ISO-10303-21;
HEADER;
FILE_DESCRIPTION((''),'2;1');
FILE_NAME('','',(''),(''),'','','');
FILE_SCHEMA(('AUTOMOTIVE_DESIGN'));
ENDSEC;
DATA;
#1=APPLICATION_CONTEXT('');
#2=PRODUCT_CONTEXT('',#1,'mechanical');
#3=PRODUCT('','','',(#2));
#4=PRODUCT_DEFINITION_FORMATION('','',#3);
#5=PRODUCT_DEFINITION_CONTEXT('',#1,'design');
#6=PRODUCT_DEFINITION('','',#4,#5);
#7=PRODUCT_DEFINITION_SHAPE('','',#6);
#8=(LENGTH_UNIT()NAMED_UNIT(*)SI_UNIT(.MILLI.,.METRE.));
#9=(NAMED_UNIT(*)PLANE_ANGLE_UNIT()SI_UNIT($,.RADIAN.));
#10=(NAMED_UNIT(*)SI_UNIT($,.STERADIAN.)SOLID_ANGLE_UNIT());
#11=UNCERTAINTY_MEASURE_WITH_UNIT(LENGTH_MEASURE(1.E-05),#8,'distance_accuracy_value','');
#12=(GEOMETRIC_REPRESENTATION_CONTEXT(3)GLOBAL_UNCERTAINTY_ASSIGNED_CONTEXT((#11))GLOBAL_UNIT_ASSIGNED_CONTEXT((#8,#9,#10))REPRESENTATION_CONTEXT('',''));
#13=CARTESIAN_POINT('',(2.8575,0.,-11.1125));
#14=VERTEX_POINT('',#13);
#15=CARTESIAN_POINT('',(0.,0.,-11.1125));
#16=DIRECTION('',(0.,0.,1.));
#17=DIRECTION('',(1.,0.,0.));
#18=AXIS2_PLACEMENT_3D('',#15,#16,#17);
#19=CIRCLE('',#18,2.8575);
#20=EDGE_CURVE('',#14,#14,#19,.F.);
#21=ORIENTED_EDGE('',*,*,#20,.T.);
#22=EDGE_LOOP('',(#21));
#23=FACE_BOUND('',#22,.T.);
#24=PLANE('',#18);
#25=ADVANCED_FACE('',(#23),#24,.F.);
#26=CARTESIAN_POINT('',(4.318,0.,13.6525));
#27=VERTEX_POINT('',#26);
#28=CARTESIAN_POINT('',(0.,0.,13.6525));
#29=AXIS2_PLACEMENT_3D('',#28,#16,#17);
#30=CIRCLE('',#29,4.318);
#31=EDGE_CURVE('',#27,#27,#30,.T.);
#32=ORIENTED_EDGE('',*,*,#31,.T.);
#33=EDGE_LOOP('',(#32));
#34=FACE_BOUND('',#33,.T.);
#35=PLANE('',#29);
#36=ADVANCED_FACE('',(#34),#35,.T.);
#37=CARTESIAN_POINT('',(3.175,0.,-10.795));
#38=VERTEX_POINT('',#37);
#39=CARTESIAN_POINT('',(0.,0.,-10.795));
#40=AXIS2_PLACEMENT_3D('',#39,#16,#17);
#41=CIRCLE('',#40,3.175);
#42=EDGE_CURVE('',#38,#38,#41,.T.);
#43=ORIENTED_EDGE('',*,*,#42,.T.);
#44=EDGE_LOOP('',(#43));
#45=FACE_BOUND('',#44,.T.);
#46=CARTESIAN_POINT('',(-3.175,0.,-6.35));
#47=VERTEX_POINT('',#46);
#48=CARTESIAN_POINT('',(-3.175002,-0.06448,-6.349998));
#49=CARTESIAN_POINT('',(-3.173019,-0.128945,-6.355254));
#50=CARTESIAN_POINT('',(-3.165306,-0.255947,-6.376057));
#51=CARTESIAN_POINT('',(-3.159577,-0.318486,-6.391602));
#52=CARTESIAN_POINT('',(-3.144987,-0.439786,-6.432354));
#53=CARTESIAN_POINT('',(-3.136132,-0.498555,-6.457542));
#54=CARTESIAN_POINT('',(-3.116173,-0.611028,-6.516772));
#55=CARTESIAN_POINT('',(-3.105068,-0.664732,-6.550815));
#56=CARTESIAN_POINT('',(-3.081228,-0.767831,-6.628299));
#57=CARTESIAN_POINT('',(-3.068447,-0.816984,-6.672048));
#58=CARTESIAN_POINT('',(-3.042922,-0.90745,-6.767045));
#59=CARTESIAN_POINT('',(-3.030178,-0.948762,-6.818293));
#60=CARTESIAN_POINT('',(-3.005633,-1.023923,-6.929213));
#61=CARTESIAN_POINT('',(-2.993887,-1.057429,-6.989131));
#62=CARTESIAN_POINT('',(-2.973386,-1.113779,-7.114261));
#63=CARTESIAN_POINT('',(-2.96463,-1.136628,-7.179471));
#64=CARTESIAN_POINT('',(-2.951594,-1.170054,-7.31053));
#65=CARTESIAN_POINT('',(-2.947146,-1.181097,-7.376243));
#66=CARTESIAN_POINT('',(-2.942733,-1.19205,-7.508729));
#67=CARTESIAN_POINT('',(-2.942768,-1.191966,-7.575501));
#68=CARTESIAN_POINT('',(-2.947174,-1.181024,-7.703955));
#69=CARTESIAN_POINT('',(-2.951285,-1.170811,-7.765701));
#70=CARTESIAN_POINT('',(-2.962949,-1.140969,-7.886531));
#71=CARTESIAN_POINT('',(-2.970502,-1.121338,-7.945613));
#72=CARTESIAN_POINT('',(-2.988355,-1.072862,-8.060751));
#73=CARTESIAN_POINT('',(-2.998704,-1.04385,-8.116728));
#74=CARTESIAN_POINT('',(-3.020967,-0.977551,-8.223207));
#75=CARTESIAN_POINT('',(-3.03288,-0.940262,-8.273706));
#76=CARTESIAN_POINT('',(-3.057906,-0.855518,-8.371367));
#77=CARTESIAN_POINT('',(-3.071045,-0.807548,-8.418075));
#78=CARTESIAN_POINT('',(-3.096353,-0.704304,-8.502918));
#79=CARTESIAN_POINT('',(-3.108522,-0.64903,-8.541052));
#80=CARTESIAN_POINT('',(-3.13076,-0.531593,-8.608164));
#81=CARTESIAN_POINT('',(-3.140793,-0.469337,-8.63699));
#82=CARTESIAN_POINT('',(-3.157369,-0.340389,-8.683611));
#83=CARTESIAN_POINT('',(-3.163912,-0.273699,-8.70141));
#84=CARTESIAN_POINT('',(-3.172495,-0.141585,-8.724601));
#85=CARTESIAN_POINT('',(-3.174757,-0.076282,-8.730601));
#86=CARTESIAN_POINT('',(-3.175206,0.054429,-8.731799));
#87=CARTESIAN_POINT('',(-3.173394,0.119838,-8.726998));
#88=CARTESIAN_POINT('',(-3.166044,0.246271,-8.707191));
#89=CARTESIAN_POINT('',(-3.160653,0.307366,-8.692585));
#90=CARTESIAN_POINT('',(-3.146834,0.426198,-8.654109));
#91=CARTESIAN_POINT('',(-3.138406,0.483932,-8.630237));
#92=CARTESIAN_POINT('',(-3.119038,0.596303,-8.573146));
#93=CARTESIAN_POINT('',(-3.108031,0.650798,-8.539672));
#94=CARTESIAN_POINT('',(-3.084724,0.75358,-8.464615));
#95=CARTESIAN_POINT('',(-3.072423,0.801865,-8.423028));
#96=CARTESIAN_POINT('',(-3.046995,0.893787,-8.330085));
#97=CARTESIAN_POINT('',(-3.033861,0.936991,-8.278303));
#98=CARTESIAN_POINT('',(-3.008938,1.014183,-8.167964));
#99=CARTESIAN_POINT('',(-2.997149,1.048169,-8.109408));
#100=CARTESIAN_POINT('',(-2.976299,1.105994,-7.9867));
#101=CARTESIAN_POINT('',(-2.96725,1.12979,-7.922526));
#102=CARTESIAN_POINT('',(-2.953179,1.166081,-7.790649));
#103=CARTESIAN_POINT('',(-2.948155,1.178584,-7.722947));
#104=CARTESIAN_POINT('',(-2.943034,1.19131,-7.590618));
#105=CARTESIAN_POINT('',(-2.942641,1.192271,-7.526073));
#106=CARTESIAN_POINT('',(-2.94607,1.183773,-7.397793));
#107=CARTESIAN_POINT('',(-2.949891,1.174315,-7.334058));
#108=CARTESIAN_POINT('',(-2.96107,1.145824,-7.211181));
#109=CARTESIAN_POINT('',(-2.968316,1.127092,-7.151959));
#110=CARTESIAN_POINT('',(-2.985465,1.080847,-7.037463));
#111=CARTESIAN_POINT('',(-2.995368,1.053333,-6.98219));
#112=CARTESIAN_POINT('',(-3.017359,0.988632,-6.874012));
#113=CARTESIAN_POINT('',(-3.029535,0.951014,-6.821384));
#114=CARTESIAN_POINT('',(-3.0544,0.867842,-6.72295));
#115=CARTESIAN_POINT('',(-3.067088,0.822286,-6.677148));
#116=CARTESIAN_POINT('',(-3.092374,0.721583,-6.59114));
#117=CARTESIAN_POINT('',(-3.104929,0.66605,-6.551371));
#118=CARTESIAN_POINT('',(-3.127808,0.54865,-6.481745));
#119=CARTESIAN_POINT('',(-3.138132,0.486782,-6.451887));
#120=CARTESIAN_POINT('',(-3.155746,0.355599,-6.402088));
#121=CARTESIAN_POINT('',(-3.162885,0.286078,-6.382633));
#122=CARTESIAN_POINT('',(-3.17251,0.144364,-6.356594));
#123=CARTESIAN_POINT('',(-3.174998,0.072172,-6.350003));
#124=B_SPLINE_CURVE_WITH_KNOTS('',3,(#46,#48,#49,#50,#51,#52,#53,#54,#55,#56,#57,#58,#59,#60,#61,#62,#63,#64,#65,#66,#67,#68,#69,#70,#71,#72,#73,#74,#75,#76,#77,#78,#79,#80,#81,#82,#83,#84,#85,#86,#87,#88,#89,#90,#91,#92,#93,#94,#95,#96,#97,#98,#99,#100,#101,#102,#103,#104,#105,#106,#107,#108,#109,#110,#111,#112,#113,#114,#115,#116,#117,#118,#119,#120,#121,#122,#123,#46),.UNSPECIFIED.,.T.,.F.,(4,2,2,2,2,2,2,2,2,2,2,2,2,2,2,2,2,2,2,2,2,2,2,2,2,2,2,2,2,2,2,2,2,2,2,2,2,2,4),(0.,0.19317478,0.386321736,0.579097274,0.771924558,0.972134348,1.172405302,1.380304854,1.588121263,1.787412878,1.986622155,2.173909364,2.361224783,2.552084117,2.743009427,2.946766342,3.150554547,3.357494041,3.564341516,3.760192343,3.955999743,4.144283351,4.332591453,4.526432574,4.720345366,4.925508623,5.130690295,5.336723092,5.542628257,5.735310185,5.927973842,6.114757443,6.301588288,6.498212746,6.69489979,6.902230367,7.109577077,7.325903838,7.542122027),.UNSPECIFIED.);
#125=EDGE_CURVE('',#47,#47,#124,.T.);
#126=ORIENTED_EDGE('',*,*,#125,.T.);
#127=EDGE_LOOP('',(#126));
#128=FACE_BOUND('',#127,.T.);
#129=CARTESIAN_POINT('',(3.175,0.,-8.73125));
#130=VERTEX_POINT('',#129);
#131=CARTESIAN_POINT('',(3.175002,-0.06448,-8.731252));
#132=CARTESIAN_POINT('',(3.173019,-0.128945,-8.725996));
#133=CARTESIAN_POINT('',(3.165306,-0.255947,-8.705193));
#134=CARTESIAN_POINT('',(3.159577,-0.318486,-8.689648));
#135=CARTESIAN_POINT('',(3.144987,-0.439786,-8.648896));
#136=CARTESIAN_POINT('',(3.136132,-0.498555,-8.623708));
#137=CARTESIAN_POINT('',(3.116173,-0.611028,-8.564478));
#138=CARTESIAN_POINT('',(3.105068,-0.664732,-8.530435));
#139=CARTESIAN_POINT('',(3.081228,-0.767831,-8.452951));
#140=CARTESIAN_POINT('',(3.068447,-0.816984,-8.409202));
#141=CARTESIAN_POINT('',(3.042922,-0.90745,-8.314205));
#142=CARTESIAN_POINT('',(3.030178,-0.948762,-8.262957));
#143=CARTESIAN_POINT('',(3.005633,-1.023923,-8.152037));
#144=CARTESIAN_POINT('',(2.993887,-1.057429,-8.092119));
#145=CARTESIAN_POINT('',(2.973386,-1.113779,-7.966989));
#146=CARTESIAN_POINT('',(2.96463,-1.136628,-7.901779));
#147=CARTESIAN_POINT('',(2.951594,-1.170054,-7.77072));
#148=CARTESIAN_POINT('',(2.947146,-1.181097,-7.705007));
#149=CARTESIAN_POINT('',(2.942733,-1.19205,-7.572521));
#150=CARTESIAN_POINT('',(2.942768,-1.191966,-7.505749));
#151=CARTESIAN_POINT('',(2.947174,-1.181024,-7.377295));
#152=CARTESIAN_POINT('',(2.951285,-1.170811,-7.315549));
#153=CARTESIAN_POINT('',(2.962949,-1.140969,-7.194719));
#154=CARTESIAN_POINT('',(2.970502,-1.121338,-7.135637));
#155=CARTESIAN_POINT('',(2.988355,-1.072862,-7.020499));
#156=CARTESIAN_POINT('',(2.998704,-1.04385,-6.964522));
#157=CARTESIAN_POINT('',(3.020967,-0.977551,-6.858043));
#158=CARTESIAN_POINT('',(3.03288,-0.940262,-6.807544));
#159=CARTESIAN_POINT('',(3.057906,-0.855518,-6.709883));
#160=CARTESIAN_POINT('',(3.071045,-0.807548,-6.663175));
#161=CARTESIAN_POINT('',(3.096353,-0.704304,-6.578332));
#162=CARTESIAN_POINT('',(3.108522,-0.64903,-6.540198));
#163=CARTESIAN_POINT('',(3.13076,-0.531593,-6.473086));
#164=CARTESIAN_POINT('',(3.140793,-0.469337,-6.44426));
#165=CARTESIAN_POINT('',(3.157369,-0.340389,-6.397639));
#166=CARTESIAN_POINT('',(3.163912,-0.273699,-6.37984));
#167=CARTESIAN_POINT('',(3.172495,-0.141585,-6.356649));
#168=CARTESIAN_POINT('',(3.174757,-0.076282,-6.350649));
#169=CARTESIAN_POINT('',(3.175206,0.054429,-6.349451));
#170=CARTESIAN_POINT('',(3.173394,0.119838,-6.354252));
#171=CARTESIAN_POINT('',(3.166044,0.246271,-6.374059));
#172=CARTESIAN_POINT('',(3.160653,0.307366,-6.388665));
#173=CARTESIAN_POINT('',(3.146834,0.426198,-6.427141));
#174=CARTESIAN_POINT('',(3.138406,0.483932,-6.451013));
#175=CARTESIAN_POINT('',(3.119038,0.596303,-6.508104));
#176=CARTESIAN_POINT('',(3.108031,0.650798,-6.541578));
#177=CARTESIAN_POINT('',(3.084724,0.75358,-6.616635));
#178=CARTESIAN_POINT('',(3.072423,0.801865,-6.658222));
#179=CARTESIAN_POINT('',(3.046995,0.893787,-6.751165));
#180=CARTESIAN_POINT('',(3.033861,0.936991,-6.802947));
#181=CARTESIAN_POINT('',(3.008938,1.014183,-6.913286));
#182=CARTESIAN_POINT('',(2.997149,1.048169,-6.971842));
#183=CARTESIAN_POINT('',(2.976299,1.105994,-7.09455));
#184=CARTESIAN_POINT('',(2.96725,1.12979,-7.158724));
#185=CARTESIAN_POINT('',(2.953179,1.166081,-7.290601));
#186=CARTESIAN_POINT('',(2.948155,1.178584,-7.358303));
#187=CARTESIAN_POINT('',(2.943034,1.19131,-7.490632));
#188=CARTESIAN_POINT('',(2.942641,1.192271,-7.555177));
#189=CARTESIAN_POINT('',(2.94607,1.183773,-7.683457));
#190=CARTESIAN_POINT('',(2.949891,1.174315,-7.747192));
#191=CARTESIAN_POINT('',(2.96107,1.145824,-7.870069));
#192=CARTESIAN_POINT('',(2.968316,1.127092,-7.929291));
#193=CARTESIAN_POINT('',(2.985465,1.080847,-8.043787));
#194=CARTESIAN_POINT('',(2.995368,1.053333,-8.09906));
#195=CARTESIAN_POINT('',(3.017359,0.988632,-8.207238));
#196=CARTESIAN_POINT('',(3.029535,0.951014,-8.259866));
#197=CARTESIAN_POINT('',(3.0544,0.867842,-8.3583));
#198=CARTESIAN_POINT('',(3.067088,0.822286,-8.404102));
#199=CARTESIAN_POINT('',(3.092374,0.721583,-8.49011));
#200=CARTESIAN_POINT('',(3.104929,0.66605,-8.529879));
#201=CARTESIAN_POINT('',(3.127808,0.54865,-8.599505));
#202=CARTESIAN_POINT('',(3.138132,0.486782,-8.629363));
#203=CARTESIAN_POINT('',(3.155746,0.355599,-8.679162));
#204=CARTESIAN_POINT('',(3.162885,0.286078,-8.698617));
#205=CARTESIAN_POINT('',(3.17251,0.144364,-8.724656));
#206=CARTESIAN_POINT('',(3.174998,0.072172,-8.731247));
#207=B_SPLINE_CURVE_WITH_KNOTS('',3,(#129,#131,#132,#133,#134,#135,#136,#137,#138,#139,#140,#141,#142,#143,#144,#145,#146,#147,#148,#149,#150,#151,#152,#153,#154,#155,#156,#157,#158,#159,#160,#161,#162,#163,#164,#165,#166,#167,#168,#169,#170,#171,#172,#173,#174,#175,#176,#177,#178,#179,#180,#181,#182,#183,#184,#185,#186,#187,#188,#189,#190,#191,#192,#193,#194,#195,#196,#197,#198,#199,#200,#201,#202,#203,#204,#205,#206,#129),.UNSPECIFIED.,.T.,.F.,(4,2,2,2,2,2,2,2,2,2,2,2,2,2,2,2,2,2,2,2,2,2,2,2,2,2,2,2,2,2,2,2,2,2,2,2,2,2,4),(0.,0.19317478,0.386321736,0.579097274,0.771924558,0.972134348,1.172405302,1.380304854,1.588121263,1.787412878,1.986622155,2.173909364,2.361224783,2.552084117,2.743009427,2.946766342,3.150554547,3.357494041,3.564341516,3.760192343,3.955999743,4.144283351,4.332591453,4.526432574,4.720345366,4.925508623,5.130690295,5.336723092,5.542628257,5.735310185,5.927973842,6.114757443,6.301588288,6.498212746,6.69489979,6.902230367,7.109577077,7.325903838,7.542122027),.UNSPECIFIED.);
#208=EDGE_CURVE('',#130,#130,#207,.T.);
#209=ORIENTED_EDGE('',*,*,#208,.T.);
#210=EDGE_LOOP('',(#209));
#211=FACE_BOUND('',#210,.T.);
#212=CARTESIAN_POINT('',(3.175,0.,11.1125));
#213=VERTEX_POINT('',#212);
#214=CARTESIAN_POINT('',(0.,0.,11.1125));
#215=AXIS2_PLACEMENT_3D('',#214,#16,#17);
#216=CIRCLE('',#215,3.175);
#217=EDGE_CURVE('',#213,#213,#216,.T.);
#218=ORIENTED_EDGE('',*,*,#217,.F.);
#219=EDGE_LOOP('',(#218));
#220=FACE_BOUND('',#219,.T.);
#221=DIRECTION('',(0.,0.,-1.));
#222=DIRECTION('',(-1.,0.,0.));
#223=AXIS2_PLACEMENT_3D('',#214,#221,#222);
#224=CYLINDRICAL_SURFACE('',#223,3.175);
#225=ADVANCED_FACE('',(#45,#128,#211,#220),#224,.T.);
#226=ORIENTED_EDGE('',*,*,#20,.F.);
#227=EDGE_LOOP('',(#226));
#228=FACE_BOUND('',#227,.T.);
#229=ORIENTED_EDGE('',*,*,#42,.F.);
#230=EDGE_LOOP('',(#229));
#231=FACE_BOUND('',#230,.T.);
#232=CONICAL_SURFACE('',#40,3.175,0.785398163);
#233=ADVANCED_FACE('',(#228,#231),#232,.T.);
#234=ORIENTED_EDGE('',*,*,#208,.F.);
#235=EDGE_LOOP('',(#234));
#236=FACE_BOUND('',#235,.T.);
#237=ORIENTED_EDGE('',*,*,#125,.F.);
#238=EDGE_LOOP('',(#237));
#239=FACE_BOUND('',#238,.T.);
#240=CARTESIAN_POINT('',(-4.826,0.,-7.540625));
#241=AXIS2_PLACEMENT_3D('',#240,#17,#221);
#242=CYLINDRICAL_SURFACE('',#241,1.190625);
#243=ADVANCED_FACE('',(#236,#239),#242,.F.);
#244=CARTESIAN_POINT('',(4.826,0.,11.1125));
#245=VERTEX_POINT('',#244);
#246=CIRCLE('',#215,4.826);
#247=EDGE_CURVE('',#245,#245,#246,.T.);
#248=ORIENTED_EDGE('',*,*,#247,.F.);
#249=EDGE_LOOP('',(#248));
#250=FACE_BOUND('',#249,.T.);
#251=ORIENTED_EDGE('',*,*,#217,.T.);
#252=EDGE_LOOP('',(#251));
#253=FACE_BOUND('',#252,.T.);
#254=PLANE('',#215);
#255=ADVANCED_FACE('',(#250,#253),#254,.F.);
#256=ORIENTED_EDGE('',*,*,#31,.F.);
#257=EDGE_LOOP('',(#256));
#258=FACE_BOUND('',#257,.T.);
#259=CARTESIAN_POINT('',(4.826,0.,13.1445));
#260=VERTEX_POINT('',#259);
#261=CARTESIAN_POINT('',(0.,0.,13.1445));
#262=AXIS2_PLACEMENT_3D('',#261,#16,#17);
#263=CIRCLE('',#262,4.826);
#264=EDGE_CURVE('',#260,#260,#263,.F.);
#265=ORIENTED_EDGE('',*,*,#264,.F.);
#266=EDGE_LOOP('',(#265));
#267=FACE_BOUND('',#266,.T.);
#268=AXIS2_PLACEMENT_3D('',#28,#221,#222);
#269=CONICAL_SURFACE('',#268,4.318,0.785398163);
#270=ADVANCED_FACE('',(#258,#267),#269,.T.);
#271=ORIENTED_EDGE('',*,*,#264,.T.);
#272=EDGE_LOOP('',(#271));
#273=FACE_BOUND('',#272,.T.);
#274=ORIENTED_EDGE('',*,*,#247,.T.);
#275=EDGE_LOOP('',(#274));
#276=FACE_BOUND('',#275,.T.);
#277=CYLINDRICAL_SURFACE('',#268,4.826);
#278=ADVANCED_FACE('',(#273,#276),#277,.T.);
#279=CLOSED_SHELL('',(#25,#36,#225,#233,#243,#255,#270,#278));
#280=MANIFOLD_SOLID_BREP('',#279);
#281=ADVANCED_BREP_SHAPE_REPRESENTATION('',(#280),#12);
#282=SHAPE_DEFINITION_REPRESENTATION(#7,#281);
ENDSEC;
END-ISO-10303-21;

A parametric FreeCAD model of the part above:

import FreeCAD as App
import Part
import Sketcher
Q = App.Units.Quantity


def edges_at(feature, points):
    """Names of the edges that pass closest to the given points."""
    edges = feature.Shape.Edges
    near = lambda p: min(range(len(edges)), key=lambda i: edges[i].distToShape(Part.Vertex(*p))[0])
    return sorted({f"Edge{near(p) + 1}" for p in points})

doc = App.newDocument("Part")
body = doc.addObject("PartDesign::Body", "Body")

# Sketch on XY plane
sketch1 = body.newObject("Sketcher::SketchObject", "Sketch")
sketch1.AttachmentSupport = (doc.getObject("XY_Plane"), [""])
sketch1.MapMode = "FlatFace"
sketch1.addGeometry(Part.Circle(App.Vector(0, 0, 0), App.Vector(0, 0, 1), 3.175), False)
sketch1.addConstraint(Sketcher.Constraint("Coincident", 0, 3, -1, 1))
sketch1.addConstraint(Sketcher.Constraint("Diameter", 0, Q("0.25 in")))
pad1 = body.newObject("PartDesign::Pad", "Pad")
pad1.Profile = sketch1
pad1.Length = Q("0.875 in")
pad1.Midplane = True

# Sketch on XY plane
sketch2 = body.newObject("Sketcher::SketchObject", "Sketch001")
sketch2.AttachmentSupport = (doc.getObject("XY_Plane"), [""])
sketch2.MapMode = "FlatFace"
sketch2.AttachmentOffset = App.Placement(App.Vector(0, 0, 0.4375 * 25.4), App.Rotation())
sketch2.addGeometry(Part.Circle(App.Vector(0, 0, 0), App.Vector(0, 0, 1), 4.826), False)
sketch2.addConstraint(Sketcher.Constraint("Coincident", 0, 3, -1, 1))
sketch2.addConstraint(Sketcher.Constraint("Diameter", 0, Q("0.38 in")))
pad2 = body.newObject("PartDesign::Pad", "Pad001")
pad2.Profile = sketch2
pad2.Length = Q("0.1 in")
doc.recompute()

chamfer = body.newObject("PartDesign::Chamfer", "Chamfer")
chamfer.Base = (pad2, edges_at(pad2, [(-4.826, 0, 13.652)]))
chamfer.Size = Q("0.02 in")

# Sketch on YZ plane
sketch3 = body.newObject("Sketcher::SketchObject", "Sketch002")
sketch3.AttachmentSupport = (doc.getObject("YZ_Plane"), [""])
sketch3.MapMode = "FlatFace"
sketch3.addGeometry(Part.Circle(App.Vector(0, -7.540625, 0), App.Vector(0, 0, 1), 1.190625), False)
sketch3.addConstraint(Sketcher.Constraint("PointOnObject", 0, 3, -2))
sketch3.addConstraint(Sketcher.Constraint("Diameter", 0, Q("0.09375 in")))
sketch3.addConstraint(Sketcher.Constraint("DistanceY", 0, 3, -1, 1, Q("0.296875 in")))
pocket1 = body.newObject("PartDesign::Pocket", "Pocket")
pocket1.Profile = sketch3
pocket1.Type = "ThroughAll"
pocket1.Midplane = True
doc.recompute()

chamfer2 = body.newObject("PartDesign::Chamfer", "Chamfer001")
chamfer2.Base = (pocket1, edges_at(pocket1, [(-3.175, 0, -11.113)]))
chamfer2.Size = Q("0.0125 in")

doc.recompute()
